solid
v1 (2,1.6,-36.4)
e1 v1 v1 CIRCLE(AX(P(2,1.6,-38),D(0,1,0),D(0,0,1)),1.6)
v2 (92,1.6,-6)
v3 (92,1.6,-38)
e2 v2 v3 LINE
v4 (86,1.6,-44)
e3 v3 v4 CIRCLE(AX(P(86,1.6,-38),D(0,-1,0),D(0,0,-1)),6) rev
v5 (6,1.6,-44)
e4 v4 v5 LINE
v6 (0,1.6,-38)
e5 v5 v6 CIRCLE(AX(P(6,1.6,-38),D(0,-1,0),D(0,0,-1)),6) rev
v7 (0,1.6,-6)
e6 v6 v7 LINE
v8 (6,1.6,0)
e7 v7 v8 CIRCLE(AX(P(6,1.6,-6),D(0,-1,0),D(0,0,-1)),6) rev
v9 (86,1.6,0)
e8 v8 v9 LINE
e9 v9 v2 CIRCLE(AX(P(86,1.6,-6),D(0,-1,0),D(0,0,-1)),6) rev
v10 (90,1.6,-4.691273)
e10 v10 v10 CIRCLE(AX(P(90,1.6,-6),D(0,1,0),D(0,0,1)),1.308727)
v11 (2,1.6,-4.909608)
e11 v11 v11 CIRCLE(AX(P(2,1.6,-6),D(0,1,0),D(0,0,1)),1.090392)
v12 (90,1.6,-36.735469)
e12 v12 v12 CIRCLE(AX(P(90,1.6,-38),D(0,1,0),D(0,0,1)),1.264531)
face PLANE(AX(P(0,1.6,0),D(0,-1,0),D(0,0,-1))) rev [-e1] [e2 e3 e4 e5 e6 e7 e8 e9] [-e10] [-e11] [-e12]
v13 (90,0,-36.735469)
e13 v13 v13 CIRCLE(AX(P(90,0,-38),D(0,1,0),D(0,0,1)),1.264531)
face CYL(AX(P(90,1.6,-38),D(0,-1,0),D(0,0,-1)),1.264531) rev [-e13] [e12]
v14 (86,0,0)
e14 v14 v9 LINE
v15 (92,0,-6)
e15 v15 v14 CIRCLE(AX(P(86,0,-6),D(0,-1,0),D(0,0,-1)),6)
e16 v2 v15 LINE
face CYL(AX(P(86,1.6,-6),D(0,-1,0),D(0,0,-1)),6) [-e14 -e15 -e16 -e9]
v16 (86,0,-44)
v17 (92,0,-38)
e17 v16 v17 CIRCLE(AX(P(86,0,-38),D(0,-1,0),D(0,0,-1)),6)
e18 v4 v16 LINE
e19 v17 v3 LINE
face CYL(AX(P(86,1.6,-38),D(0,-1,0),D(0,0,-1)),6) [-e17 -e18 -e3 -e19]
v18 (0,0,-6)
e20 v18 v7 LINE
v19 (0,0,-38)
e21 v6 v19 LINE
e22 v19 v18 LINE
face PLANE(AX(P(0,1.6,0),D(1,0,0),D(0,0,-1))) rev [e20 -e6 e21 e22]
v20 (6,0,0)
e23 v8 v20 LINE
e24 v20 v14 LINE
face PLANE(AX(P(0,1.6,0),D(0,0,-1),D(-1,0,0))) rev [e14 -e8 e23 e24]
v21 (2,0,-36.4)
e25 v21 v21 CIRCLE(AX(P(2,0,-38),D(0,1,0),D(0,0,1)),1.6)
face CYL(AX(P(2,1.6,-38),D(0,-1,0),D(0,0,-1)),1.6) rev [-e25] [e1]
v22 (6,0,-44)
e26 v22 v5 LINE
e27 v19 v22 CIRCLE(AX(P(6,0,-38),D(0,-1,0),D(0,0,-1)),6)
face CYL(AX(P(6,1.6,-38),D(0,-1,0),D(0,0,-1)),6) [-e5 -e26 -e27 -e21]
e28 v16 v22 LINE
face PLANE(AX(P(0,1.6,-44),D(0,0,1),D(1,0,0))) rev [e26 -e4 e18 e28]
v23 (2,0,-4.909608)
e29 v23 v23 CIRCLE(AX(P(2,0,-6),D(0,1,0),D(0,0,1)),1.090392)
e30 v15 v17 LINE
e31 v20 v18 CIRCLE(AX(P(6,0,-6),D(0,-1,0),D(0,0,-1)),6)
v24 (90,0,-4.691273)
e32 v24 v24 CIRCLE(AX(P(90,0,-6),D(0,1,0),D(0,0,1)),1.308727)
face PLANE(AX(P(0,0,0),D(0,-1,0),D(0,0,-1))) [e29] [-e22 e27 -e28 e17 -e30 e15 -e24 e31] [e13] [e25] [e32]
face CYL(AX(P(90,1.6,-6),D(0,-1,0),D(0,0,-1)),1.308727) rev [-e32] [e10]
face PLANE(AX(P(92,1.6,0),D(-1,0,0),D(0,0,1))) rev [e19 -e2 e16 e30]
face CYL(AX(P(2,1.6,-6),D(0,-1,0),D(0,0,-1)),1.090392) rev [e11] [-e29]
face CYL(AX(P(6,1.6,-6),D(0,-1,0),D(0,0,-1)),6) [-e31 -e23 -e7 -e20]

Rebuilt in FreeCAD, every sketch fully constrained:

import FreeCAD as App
import Part
import Sketcher


def edges_at(feature, points):
    """Names of the edges that pass closest to the given points."""
    edges = feature.Shape.Edges
    near = lambda p: min(range(len(edges)), key=lambda i: edges[i].distToShape(Part.Vertex(*p))[0])
    return sorted({f"Edge{near(p) + 1}" for p in points})

doc = App.newDocument("Part")
body = doc.addObject("PartDesign::Body", "Body")

sketch1 = body.newObject("Sketcher::SketchObject", "Sketch")
sketch1.AttachmentSupport = (doc.getObject("XZ_Plane"), [""])
sketch1.MapMode = "FlatFace"
sketch1.addGeometry(Part.LineSegment(App.Vector(0, -44, 0), App.Vector(0, 0, 0)), False)
sketch1.addGeometry(Part.LineSegment(App.Vector(0, 0, 0), App.Vector(92, 0, 0)), False)
sketch1.addGeometry(Part.LineSegment(App.Vector(92, 0, 0), App.Vector(92, -44, 0)), False)
sketch1.addGeometry(Part.LineSegment(App.Vector(92, -44, 0), App.Vector(0, -44, 0)), False)
sketch1.addGeometry(Part.Circle(App.Vector(2, -6, 0), App.Vector(0, 0, 1), 1.1), False)
sketch1.addGeometry(Part.Circle(App.Vector(90, -6, 0), App.Vector(0, 0, 1), 1.3), False)
sketch1.addGeometry(Part.Circle(App.Vector(2, -38, 0), App.Vector(0, 0, 1), 1.6), False)
sketch1.addGeometry(Part.Circle(App.Vector(90, -38, 0), App.Vector(0, 0, 1), 1.3), False)
sketch1.addConstraint(Sketcher.Constraint("Coincident", 0, 2, 1, 1))
sketch1.addConstraint(Sketcher.Constraint("Coincident", 1, 2, 2, 1))
sketch1.addConstraint(Sketcher.Constraint("Coincident", 2, 2, 3, 1))
sketch1.addConstraint(Sketcher.Constraint("Coincident", 3, 2, 0, 1))
sketch1.addConstraint(Sketcher.Constraint("Vertical", 0))
sketch1.addConstraint(Sketcher.Constraint("Horizontal", 1))
sketch1.addConstraint(Sketcher.Constraint("Vertical", 2))
sketch1.addConstraint(Sketcher.Constraint("Horizontal", 3))
sketch1.addConstraint(Sketcher.Constraint("Coincident", 0, 2, -1, 1))
sketch1.addConstraint(Sketcher.Constraint("Horizontal", 4, 3, 5, 3))
sketch1.addConstraint(Sketcher.Constraint("Horizontal", 6, 3, 7, 3))
sketch1.addConstraint(Sketcher.Constraint("Vertical", 4, 3, 6, 3))
sketch1.addConstraint(Sketcher.Constraint("Vertical", 5, 3, 7, 3))
sketch1.addConstraint(Sketcher.Constraint("Diameter", 6, 3.2))
sketch1.addConstraint(Sketcher.Constraint("DistanceX", 1, 1, 1, 2, 92.0))
sketch1.addConstraint(Sketcher.Constraint("DistanceY", 0, 1, 0, 2, 44.0))
sketch1.addConstraint(Sketcher.Constraint("DistanceX", -1, 1, 4, 3, 2.0))
sketch1.addConstraint(Sketcher.Constraint("DistanceY", 4, 3, -1, 1, 6.0))
sketch1.addConstraint(Sketcher.Constraint("DistanceX", -1, 1, 5, 3, 90.0))
sketch1.addConstraint(Sketcher.Constraint("DistanceY", 6, 3, -1, 1, 38.0))
sketch1.addConstraint(Sketcher.Constraint("Diameter", 7, 2.529062))
sketch1.addConstraint(Sketcher.Constraint("Diameter", 4, 2.180784))
sketch1.addConstraint(Sketcher.Constraint("Diameter", 5, 2.617454))
pad1 = body.newObject("PartDesign::Pad", "Pad")
pad1.Profile = sketch1
pad1.Length = 1.6
pad1.Reversed = True
doc.recompute()

fillet = body.newObject("PartDesign::Fillet", "Fillet")
fillet.Base = (pad1, edges_at(pad1, [
    (0, 0.8, -44),
    (92, 0.8, -44),
    (92, 0.8, 0),
    (0, 0.8, 0),
]))
fillet.Radius = 6

doc.recompute()
